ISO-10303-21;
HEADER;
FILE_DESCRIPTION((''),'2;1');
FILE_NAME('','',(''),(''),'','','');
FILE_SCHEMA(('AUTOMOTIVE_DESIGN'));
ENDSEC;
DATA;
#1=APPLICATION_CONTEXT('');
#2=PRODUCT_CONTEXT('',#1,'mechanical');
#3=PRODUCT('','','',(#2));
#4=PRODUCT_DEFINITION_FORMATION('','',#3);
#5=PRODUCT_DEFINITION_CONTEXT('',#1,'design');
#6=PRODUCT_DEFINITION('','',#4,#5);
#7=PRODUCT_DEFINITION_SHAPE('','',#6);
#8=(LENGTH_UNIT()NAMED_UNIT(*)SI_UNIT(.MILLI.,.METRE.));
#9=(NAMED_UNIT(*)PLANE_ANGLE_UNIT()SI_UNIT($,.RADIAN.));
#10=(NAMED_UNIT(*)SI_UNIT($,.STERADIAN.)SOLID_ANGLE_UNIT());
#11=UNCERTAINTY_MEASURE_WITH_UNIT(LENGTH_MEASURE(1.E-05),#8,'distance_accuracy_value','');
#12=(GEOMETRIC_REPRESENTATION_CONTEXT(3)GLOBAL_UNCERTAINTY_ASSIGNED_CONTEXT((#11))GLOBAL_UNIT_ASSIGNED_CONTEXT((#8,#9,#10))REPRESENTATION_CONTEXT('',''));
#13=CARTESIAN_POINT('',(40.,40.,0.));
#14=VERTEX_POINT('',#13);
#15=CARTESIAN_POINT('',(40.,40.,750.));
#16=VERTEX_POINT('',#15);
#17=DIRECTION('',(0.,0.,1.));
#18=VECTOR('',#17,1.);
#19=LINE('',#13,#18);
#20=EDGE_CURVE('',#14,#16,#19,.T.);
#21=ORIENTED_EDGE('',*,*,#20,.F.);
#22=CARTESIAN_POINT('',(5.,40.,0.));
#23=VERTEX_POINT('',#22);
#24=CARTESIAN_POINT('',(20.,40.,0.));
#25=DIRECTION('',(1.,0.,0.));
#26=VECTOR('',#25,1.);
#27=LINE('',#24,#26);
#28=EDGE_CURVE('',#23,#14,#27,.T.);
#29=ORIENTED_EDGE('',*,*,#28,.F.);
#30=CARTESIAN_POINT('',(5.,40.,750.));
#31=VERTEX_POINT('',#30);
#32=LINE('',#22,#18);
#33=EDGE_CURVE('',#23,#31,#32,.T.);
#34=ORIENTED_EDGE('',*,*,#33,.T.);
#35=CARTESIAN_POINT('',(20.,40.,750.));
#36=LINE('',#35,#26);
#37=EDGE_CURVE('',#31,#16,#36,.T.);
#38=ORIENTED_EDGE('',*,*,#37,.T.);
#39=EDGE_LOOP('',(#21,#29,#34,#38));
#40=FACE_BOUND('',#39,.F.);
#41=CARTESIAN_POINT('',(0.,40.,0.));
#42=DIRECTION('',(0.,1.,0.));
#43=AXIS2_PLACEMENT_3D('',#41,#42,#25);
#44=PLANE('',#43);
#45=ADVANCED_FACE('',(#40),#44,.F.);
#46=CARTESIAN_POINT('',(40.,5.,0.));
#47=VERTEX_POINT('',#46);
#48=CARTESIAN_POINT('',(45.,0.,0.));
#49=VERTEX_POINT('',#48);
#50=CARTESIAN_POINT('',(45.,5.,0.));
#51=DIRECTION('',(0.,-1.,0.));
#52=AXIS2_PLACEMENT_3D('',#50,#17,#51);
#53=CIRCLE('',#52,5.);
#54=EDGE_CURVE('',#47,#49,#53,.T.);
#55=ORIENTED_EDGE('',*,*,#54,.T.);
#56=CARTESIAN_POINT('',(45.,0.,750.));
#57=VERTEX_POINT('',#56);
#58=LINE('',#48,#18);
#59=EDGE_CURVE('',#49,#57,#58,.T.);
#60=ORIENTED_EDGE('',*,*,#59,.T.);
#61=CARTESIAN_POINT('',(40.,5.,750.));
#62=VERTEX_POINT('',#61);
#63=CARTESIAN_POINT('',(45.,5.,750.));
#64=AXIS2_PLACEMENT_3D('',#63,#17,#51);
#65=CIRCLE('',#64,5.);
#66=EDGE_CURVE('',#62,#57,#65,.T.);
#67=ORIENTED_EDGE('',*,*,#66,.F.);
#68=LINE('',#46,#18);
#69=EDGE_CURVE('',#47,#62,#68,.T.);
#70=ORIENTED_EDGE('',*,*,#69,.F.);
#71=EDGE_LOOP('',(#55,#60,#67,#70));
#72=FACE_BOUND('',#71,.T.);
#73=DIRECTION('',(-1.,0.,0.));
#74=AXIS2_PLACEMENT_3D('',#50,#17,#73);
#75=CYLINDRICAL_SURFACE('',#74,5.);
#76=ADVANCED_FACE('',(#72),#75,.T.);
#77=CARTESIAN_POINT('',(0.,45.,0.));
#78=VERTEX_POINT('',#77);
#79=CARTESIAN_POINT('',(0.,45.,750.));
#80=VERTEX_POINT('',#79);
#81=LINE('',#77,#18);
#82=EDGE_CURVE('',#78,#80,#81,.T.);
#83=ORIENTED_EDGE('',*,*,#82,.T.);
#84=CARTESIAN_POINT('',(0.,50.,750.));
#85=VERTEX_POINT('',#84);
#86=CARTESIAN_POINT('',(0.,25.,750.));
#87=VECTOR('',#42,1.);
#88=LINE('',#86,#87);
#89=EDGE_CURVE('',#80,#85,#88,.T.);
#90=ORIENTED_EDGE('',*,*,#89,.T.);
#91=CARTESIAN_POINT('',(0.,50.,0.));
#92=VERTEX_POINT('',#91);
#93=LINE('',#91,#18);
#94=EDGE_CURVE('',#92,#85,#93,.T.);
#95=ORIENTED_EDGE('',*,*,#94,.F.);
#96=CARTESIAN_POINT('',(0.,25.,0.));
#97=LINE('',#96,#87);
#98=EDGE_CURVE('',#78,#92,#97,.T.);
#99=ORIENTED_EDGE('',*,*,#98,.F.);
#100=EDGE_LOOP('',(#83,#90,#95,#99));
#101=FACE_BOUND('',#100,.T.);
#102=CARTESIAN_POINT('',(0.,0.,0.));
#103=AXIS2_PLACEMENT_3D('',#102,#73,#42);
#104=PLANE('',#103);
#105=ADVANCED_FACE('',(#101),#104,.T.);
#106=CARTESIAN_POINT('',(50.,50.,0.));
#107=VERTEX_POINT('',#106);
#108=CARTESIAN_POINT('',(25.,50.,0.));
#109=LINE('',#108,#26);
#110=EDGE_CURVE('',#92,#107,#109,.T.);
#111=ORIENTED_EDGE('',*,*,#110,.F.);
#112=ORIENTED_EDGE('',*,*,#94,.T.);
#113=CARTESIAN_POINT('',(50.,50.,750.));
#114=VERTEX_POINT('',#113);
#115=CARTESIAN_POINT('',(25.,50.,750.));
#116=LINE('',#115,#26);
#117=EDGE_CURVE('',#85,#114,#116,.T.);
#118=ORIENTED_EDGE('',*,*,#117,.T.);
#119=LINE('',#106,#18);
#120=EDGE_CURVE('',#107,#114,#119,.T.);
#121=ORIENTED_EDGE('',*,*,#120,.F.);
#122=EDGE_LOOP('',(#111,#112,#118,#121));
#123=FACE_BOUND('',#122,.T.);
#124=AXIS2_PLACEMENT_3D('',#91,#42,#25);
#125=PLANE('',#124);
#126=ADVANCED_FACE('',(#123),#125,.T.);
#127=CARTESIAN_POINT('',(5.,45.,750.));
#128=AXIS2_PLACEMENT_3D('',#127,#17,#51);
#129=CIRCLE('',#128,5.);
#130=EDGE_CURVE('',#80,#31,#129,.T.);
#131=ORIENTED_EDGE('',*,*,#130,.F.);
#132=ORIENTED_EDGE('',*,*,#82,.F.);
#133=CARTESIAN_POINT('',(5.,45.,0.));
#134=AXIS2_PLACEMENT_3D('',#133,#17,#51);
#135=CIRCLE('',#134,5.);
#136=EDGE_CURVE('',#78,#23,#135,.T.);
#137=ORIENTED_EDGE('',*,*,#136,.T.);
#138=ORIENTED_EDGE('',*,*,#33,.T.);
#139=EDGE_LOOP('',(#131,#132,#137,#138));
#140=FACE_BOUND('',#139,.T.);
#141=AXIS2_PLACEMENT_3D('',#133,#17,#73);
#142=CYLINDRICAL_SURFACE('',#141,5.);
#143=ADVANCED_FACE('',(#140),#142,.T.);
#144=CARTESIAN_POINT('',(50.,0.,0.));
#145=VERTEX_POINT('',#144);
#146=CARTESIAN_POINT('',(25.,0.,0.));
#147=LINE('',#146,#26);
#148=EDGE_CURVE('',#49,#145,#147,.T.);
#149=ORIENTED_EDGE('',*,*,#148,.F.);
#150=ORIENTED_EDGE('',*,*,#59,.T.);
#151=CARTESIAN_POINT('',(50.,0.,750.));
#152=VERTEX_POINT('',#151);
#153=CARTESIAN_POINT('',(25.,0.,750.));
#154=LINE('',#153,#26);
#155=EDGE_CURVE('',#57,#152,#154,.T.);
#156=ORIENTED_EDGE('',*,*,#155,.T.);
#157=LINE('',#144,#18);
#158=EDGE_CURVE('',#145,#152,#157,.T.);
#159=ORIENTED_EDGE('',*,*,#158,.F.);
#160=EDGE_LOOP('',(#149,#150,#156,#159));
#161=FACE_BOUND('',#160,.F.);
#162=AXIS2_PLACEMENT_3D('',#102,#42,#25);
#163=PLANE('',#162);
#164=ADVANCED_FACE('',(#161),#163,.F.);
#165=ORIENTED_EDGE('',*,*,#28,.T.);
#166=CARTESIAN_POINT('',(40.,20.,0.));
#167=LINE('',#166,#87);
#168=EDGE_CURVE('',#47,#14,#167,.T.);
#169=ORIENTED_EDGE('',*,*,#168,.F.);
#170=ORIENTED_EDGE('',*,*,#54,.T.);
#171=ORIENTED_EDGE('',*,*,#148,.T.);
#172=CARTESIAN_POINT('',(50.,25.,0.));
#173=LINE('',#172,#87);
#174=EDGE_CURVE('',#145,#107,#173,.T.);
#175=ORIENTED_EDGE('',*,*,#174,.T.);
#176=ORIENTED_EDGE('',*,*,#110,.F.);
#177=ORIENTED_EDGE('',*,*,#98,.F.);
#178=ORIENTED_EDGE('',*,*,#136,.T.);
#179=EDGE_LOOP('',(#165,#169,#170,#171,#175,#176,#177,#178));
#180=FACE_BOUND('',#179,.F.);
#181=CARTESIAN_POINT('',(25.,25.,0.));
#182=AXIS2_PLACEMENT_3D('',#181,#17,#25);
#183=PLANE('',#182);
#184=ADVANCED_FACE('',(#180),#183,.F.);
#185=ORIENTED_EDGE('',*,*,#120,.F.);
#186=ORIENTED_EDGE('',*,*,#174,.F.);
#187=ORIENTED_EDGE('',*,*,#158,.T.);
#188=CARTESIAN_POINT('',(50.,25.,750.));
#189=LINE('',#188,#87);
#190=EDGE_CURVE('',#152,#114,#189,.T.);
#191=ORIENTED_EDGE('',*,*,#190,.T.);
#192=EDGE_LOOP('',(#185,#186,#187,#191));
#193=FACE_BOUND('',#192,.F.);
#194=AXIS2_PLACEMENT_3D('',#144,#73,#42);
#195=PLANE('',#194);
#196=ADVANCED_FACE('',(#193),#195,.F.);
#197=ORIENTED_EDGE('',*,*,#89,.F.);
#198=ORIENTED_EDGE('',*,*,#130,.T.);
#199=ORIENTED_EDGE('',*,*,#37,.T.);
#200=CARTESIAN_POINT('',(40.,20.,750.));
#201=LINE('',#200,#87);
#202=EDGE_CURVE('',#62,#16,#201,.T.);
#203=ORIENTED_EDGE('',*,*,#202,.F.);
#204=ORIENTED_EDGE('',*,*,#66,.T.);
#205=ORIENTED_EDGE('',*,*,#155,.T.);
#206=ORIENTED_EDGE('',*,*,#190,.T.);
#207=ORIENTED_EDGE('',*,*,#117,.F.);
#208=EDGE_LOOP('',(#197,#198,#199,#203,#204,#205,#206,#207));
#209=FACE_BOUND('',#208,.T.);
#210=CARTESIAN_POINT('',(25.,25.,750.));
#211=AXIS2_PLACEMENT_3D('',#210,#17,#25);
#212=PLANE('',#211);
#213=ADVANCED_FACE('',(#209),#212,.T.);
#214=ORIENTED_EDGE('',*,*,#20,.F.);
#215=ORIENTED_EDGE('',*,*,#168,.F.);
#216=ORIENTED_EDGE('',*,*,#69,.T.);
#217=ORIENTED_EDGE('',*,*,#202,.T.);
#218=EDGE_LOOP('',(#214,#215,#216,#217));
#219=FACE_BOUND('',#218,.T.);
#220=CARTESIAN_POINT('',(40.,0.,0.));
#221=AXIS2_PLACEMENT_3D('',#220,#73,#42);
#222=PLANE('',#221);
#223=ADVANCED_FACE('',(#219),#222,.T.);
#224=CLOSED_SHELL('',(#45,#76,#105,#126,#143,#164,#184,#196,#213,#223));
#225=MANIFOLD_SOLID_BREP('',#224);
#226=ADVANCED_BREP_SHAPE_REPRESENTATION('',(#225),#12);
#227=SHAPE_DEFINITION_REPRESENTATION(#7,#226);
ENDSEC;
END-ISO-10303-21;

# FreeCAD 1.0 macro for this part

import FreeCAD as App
import Part
import Sketcher

V = App.Vector
Q = App.Units.Quantity


def edges_at(feature, points):
    """Names of the edges that pass closest to the given points."""
    edges = feature.Shape.Edges
    near = lambda p: min(range(len(edges)), key=lambda i: edges[i].distToShape(Part.Vertex(*p))[0])
    return sorted({f"Edge{near(p) + 1}" for p in points})

doc = App.newDocument("Part")
params = doc.addObject("Spreadsheet::Sheet", "Params")
for row, (alias, value) in enumerate([
    ("sketch1_width", "40 mm"),
    ("pad1_length", "750 mm"),
    ("sketch2_width", "50 mm"),
    ("pad2_length", "750 mm"),
    ("fillet_radius", "5 mm"),
    ("fillet2_radius", "5 mm"),
], start=1):
    params.set(f"A{row}", alias)
    params.set(f"B{row}", "=" + value)
    params.setAlias(f"B{row}", alias)

body = doc.addObject("PartDesign::Body", "Body")

# Sketch on XY plane
sketch1 = body.newObject("Sketcher::SketchObject", "Sketch")
sketch1.AttachmentSupport = (doc.getObject("XY_Plane"), [""])
sketch1.MapMode = "FlatFace"
sketch1.addGeometry(Part.LineSegment(V(0, 40, 0), V(0, 0, 0)), False)
sketch1.addGeometry(Part.LineSegment(V(0, 0, 0), V(40, 0, 0)), False)
sketch1.addGeometry(Part.LineSegment(V(40, 0, 0), V(40, 40, 0)), False)
sketch1.addGeometry(Part.LineSegment(V(40, 40, 0), V(0, 40, 0)), False)
sketch1.addConstraint(Sketcher.Constraint("Coincident", 0, 2, 1, 1))
sketch1.addConstraint(Sketcher.Constraint("Coincident", 1, 2, 2, 1))
sketch1.addConstraint(Sketcher.Constraint("Coincident", 2, 2, 3, 1))
sketch1.addConstraint(Sketcher.Constraint("Coincident", 3, 2, 0, 1))
sketch1.addConstraint(Sketcher.Constraint("Vertical", 0))
sketch1.addConstraint(Sketcher.Constraint("Horizontal", 1))
sketch1.addConstraint(Sketcher.Constraint("Vertical", 2))
sketch1.addConstraint(Sketcher.Constraint("Horizontal", 3))
sketch1.addConstraint(Sketcher.Constraint("Coincident", 0, 2, -1, 1))
sketch1.addConstraint(Sketcher.Constraint("Equal", 3, 0))
sketch1.addConstraint(Sketcher.Constraint("DistanceX", 1, 1, 1, 2, Q("40 mm")))
sketch1.setExpression("Constraints[10]", "Params.sketch1_width")
pad1 = body.newObject("PartDesign::Pad", "Pad")
pad1.Profile = sketch1
pad1.setExpression("Length", "Params.pad1_length")
body2 = doc.addObject("PartDesign::Body", "Body001")

# Sketch on XY plane
sketch2 = body2.newObject("Sketcher::SketchObject", "Sketch001")
sketch2.AttachmentSupport = (doc.getObject("XY_Plane001"), [""])
sketch2.MapMode = "FlatFace"
sketch2.addGeometry(Part.LineSegment(V(0, 50, 0), V(0, 0, 0)), False)
sketch2.addGeometry(Part.LineSegment(V(0, 0, 0), V(50, 0, 0)), False)
sketch2.addGeometry(Part.LineSegment(V(50, 0, 0), V(50, 50, 0)), False)
sketch2.addGeometry(Part.LineSegment(V(50, 50, 0), V(0, 50, 0)), False)
sketch2.addConstraint(Sketcher.Constraint("Coincident", 0, 2, 1, 1))
sketch2.addConstraint(Sketcher.Constraint("Coincident", 1, 2, 2, 1))
sketch2.addConstraint(Sketcher.Constraint("Coincident", 2, 2, 3, 1))
sketch2.addConstraint(Sketcher.Constraint("Coincident", 3, 2, 0, 1))
sketch2.addConstraint(Sketcher.Constraint("Vertical", 0))
sketch2.addConstraint(Sketcher.Constraint("Horizontal", 1))
sketch2.addConstraint(Sketcher.Constraint("Vertical", 2))
sketch2.addConstraint(Sketcher.Constraint("Horizontal", 3))
sketch2.addConstraint(Sketcher.Constraint("Coincident", 0, 2, -1, 1))
sketch2.addConstraint(Sketcher.Constraint("Equal", 3, 0))
sketch2.addConstraint(Sketcher.Constraint("DistanceX", 1, 1, 1, 2, Q("50 mm")))
sketch2.setExpression("Constraints[10]", "Params.sketch2_width")
pad2 = body2.newObject("PartDesign::Pad", "Pad001")
pad2.Profile = sketch2
pad2.setExpression("Length", "Params.pad2_length")
doc.recompute()

boolean = body2.newObject("PartDesign::Boolean", "Boolean")
boolean.Type = "Cut"
boolean.addObjects([body])
doc.recompute()

fillet = body2.newObject("PartDesign::Fillet", "Fillet")
fillet.Base = (boolean, edges_at(boolean, [(0, 40, 375)]))
fillet.setExpression("Radius", "Params.fillet_radius")
doc.recompute()

fillet2 = body2.newObject("PartDesign::Fillet", "Fillet001")
fillet2.Base = (fillet, edges_at(fillet, [(40, 0, 375)]))
fillet2.setExpression("Radius", "Params.fillet2_radius")

doc.recompute()
